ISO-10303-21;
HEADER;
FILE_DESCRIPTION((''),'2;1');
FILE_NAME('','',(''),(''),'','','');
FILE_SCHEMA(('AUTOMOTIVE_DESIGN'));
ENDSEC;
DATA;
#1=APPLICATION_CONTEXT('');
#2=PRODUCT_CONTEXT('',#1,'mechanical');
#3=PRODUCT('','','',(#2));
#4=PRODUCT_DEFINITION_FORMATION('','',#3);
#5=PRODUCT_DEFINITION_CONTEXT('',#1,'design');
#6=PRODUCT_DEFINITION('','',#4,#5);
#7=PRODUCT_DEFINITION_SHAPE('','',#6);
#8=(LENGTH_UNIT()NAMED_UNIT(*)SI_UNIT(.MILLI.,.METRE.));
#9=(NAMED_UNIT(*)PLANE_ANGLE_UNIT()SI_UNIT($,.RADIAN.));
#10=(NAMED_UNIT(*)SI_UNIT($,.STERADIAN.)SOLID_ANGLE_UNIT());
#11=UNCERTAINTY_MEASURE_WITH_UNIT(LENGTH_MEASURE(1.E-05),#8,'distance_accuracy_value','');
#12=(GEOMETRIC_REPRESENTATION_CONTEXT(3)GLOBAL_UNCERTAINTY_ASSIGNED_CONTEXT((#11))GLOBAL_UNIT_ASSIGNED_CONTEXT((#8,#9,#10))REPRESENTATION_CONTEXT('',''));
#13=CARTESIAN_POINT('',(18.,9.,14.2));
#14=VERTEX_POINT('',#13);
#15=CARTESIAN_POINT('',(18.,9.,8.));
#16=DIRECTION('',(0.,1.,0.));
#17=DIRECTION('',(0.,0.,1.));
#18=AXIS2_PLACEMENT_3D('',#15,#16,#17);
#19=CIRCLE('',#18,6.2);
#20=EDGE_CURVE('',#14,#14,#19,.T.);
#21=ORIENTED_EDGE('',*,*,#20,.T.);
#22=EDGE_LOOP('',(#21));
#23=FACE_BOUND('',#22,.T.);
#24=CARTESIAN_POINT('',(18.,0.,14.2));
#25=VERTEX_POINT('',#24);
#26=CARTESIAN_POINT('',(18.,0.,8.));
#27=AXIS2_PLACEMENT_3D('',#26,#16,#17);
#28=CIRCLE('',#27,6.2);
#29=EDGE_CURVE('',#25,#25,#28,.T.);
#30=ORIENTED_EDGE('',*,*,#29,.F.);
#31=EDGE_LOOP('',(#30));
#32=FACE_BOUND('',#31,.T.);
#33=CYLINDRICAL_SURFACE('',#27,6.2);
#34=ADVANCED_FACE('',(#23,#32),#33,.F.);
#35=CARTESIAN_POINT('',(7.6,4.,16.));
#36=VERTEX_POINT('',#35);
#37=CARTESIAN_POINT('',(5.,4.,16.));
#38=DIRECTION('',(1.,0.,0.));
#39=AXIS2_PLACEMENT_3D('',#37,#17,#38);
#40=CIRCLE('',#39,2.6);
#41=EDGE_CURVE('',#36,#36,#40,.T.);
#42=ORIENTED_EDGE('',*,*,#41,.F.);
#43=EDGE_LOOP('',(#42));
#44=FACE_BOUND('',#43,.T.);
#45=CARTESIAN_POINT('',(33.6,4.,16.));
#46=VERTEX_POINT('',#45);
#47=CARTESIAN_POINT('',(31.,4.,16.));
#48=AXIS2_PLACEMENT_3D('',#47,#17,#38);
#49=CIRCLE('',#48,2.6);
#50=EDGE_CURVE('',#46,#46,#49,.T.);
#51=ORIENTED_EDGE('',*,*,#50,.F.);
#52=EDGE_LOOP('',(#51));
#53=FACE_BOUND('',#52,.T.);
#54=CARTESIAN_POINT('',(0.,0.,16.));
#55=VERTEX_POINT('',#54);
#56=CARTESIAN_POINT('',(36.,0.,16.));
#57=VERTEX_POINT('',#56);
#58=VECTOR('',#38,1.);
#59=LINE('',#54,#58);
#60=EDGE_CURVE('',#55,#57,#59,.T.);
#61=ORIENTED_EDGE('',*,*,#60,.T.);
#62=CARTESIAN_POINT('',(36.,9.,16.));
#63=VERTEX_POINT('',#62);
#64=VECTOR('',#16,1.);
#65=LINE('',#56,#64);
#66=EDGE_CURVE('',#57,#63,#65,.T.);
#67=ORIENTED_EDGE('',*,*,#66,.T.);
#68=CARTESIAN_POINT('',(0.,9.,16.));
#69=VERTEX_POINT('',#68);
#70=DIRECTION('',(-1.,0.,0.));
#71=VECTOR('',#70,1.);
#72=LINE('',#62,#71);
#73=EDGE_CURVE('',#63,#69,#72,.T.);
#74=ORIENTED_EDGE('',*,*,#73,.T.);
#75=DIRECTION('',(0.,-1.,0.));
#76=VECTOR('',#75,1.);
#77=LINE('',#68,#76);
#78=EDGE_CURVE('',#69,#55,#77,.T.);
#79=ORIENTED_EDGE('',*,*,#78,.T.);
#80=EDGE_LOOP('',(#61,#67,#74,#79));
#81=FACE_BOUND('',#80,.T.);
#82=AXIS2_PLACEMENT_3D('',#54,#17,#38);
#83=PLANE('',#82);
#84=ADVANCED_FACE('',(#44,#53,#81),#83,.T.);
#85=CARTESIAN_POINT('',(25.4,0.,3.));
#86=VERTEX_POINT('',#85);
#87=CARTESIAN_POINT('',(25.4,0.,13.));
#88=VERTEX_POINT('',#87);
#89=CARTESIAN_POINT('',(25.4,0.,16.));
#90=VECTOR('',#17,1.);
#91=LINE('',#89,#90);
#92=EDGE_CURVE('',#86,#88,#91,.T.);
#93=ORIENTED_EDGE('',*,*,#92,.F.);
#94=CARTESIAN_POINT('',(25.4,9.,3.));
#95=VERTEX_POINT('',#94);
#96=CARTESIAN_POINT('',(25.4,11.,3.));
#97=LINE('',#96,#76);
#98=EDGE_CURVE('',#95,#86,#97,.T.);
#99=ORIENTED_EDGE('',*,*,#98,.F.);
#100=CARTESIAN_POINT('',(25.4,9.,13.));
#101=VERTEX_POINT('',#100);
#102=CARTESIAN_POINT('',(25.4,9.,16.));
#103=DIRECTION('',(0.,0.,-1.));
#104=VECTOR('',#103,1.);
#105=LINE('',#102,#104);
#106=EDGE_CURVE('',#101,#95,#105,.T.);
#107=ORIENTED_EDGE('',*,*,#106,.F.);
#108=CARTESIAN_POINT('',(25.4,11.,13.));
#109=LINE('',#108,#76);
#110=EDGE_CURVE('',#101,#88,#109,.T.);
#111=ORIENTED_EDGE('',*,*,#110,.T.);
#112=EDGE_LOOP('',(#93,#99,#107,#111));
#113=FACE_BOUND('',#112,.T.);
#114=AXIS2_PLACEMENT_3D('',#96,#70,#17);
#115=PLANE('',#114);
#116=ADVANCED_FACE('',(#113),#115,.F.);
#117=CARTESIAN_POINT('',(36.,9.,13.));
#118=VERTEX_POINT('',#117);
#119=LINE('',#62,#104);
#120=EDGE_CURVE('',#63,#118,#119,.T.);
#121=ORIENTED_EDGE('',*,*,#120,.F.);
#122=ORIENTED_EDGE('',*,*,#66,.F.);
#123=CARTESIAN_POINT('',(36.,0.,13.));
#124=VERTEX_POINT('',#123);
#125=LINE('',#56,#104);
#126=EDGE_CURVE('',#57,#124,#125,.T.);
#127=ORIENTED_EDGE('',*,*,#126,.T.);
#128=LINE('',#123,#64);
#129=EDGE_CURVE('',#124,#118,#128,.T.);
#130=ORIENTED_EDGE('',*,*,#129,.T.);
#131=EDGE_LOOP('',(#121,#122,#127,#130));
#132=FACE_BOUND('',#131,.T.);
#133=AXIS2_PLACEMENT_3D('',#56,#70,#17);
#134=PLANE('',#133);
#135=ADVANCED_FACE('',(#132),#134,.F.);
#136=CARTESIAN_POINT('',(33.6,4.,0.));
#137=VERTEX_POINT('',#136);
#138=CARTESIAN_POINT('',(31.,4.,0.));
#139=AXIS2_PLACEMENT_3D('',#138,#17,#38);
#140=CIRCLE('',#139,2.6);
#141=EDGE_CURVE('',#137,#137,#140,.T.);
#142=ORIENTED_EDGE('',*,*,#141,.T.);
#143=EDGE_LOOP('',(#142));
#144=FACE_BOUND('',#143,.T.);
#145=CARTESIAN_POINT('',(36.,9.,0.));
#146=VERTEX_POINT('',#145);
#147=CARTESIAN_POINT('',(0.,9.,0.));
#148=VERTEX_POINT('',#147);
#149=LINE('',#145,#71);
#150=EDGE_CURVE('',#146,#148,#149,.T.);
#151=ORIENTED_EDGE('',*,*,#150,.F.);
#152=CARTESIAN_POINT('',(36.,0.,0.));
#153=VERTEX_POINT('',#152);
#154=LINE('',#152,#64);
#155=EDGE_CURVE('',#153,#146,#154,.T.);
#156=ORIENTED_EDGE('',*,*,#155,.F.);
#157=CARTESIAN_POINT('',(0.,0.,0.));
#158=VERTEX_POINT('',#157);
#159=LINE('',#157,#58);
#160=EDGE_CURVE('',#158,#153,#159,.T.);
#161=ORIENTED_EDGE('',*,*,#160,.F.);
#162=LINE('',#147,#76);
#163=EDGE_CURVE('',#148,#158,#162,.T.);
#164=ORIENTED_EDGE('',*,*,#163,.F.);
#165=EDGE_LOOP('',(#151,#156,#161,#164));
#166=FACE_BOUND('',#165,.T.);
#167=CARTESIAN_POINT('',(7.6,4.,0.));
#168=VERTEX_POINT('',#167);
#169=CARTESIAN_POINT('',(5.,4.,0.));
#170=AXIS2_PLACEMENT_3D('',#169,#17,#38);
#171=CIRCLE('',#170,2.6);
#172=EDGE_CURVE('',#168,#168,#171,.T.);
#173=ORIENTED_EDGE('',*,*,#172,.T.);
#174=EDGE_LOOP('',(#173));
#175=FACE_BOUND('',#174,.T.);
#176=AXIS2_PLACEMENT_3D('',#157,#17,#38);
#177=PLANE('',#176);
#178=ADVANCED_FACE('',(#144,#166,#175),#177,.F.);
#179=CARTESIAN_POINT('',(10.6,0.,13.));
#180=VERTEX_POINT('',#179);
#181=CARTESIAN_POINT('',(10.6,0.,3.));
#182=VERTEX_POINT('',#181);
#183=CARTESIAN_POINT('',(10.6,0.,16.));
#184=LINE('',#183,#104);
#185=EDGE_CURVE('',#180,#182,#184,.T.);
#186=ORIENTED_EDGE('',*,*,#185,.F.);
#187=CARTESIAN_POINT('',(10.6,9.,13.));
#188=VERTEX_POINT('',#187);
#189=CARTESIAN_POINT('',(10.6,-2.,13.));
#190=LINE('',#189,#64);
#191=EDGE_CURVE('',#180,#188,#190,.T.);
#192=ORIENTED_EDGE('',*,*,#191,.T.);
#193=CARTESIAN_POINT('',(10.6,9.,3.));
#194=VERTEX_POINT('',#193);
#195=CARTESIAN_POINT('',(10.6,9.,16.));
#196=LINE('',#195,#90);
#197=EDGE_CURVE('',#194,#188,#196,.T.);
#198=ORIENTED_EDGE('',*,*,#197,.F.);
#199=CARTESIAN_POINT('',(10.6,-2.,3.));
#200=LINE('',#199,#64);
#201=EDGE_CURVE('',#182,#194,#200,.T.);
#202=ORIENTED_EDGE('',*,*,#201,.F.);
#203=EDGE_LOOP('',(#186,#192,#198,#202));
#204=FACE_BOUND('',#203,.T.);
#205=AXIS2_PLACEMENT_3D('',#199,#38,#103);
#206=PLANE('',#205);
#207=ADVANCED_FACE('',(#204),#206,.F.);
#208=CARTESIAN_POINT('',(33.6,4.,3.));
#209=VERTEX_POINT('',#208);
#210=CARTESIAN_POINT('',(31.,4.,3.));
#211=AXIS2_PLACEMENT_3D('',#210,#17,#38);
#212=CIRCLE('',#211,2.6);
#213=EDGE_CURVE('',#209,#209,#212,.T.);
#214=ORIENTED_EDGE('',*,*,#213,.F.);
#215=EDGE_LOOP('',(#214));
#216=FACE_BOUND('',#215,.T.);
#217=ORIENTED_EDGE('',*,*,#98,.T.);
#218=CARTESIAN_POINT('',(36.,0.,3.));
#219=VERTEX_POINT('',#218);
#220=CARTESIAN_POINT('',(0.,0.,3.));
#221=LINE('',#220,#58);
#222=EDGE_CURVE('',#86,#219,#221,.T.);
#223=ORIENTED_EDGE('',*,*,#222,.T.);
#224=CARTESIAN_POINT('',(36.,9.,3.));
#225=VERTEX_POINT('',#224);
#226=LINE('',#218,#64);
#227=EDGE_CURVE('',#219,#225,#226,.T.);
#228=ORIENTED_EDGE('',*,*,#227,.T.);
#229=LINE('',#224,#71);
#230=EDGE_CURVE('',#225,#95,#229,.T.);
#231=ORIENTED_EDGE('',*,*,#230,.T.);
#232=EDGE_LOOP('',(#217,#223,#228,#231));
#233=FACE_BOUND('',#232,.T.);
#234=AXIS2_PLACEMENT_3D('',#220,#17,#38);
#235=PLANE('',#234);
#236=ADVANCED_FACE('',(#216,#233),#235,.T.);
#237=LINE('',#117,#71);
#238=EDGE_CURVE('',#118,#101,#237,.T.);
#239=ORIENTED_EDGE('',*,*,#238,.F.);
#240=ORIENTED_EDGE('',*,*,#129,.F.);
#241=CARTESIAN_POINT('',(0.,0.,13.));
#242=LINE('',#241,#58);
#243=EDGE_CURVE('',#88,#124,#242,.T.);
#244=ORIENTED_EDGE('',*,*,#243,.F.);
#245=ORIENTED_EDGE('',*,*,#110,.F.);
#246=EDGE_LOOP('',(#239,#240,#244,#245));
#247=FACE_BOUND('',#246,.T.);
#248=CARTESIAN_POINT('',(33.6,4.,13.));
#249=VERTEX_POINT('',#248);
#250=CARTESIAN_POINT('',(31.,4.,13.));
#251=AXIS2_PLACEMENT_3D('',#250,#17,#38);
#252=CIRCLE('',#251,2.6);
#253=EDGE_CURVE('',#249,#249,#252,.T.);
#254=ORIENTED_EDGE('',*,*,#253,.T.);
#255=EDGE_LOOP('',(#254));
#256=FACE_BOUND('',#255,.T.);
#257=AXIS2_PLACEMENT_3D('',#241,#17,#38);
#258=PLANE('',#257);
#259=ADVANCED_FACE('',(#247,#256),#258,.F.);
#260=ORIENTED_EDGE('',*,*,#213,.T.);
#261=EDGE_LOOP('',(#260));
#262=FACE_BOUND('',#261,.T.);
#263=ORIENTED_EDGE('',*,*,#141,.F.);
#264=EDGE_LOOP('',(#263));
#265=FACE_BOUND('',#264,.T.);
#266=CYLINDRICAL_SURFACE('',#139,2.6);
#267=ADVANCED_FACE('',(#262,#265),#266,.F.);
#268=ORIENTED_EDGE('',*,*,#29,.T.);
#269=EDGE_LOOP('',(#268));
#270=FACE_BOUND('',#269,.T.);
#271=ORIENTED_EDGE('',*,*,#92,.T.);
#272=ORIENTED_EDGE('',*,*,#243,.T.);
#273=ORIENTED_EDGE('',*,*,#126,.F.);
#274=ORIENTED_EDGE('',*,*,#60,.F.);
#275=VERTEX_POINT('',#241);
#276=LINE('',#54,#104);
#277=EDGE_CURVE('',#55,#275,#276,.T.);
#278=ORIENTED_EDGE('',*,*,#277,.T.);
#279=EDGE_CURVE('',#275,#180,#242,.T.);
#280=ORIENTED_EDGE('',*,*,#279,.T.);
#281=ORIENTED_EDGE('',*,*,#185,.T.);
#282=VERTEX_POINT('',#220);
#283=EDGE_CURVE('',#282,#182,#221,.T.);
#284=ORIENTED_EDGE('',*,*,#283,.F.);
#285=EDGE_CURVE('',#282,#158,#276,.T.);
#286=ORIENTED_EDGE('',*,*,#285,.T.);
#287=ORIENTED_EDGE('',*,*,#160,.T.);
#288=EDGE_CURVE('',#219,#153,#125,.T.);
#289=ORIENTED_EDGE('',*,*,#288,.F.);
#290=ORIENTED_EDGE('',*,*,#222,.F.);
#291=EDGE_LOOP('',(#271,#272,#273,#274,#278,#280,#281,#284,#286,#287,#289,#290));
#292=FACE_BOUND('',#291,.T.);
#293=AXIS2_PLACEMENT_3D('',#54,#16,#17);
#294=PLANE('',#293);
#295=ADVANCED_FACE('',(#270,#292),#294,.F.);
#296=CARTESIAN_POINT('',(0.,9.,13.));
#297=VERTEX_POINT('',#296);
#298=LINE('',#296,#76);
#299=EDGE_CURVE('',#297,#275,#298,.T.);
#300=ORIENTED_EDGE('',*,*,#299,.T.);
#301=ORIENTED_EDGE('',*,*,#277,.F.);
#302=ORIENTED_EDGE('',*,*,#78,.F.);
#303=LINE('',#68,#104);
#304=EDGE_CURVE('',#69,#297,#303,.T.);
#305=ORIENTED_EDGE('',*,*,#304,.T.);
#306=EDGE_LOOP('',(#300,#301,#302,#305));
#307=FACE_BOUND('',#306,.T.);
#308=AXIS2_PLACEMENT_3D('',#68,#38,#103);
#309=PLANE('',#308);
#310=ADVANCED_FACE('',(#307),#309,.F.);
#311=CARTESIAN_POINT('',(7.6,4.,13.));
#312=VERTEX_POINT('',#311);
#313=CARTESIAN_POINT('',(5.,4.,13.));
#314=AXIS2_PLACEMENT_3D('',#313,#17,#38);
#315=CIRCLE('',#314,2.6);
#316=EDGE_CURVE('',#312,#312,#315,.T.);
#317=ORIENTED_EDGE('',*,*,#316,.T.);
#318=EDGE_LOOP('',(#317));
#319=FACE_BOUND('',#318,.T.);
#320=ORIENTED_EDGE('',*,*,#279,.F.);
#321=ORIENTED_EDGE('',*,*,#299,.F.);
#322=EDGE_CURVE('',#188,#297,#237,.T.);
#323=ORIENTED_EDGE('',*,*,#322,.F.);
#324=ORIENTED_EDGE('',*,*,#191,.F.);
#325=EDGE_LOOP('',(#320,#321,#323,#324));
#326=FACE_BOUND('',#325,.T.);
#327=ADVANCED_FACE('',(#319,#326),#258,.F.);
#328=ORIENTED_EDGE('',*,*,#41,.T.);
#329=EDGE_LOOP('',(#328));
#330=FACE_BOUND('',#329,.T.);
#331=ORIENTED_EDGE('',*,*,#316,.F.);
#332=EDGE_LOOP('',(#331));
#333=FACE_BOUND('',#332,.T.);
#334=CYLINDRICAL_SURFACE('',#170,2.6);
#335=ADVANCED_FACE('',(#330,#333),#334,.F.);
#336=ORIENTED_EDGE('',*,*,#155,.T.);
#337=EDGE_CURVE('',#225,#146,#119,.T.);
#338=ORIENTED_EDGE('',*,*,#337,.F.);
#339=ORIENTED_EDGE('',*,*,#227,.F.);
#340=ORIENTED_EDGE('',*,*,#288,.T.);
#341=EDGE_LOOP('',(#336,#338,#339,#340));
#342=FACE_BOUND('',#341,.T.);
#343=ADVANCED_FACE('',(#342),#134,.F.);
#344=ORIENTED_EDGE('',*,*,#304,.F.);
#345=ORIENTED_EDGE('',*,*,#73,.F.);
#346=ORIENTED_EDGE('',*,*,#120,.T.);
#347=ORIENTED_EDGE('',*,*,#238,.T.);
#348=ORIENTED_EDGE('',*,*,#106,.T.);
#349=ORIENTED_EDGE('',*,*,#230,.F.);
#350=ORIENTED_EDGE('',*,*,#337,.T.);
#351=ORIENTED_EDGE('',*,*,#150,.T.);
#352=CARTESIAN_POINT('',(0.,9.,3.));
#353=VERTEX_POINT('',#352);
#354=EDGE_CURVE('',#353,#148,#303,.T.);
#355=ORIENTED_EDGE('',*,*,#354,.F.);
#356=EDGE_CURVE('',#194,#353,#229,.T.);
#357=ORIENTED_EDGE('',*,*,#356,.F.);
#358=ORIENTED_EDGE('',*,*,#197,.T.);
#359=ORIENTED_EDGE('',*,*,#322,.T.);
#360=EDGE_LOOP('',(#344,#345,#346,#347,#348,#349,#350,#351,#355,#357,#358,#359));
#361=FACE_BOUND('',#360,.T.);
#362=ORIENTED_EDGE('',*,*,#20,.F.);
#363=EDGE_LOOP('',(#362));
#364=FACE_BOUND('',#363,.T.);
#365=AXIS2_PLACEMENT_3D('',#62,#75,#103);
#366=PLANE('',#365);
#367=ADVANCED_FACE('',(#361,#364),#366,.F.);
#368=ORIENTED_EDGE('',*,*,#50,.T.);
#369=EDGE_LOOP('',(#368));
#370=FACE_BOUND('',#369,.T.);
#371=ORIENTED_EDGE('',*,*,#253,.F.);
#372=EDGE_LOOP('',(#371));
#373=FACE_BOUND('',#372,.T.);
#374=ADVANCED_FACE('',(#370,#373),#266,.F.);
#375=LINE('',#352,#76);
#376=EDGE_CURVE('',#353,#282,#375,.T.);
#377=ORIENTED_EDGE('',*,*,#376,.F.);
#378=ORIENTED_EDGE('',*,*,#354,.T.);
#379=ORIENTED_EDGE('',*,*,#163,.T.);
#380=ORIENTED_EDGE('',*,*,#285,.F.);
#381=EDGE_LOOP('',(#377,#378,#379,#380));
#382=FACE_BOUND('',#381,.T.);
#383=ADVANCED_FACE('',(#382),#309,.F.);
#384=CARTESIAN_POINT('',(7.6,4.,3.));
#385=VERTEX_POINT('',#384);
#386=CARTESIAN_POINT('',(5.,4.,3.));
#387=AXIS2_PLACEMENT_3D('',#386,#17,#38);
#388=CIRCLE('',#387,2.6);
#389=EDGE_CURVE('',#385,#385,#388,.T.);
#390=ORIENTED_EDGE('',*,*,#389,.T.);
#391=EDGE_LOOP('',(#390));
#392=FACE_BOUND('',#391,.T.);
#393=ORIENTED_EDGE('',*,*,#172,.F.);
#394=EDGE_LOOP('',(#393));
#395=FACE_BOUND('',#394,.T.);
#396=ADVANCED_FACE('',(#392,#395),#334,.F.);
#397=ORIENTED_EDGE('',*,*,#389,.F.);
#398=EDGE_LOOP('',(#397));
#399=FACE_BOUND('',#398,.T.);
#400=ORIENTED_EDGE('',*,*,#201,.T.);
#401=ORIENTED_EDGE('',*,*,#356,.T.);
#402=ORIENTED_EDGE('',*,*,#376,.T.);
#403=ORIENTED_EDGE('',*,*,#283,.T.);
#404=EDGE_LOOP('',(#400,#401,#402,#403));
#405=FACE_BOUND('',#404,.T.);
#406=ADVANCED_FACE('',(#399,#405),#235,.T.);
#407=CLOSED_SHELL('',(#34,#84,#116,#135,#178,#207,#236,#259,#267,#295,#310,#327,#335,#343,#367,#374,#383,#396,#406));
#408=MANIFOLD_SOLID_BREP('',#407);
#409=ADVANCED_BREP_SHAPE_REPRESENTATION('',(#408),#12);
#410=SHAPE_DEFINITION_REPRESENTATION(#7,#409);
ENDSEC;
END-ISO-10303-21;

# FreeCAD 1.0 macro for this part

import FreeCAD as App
import Part
import Sketcher

V = App.Vector
Q = App.Units.Quantity

doc = App.newDocument("Part")
params = doc.addObject("Spreadsheet::Sheet", "Params")
for row, (alias, value) in enumerate([
    ("sketch1_width", "36 mm"),
    ("sketch1_height", "9 mm"),
    ("pad1_length", "16 mm"),
    ("sketch2_height", "13 mm"),
    ("sketch2_width", "12.6 mm"),
    ("pocket1_length", "10 mm"),
    ("sketch3_height", "13 mm"),
    ("sketch3_width", "12.6 mm"),
    ("pocket2_length", "10 mm"),
    ("sketch4_diameter", "5.2 mm"),
    ("sketch5_diameter", "5.2 mm"),
    ("sketch6_diameter", "12.4 mm"),
], start=1):
    params.set(f"A{row}", alias)
    params.set(f"B{row}", "=" + value)
    params.setAlias(f"B{row}", alias)

body = doc.addObject("PartDesign::Body", "Body")

sketch1 = doc.addObject("Sketcher::SketchObject", "Sketch")
body.addObject(sketch1)
sketch1.AttachmentSupport = (doc.XY_Plane, [""])
sketch1.MapMode = "FlatFace"
sketch1.addGeometry([
    Part.LineSegment(V(0, 9, 0), V(0, 0, 0)),
    Part.LineSegment(V(0, 0, 0), V(36, 0, 0)),
    Part.LineSegment(V(36, 0, 0), V(36, 9, 0)),
    Part.LineSegment(V(36, 9, 0), V(0, 9, 0)),
], False)
sketch1.addConstraint([
    Sketcher.Constraint("Coincident", 0, 2, 1, 1),
    Sketcher.Constraint("Coincident", 1, 2, 2, 1),
    Sketcher.Constraint("Coincident", 2, 2, 3, 1),
    Sketcher.Constraint("Coincident", 3, 2, 0, 1),
    Sketcher.Constraint("Vertical", 0),
    Sketcher.Constraint("Horizontal", 1),
    Sketcher.Constraint("Vertical", 2),
    Sketcher.Constraint("Horizontal", 3),
    Sketcher.Constraint("Coincident", 0, 2, -1, 1),
    Sketcher.Constraint("DistanceX", 1, 1, 1, 2, Q("36 mm")),
    Sketcher.Constraint("DistanceY", 0, 2, 0, 1, Q("9 mm")),
])
sketch1.setExpression("Constraints[9]", "Params.sketch1_width")
sketch1.setExpression("Constraints[10]", "Params.sketch1_height")
pad1 = doc.addObject("PartDesign::Pad", "Pad")
body.addObject(pad1)
pad1.Profile = sketch1
pad1.setExpression("Length", "Params.pad1_length")

sketch2 = doc.addObject("Sketcher::SketchObject", "Sketch001")
body.addObject(sketch2)
sketch2.AttachmentSupport = (doc.XY_Plane, [""])
sketch2.MapMode = "FlatFace"
sketch2.AttachmentOffset = App.Placement(V(0, 0, 8), App.Rotation())
sketch2.addGeometry([
    Part.LineSegment(V(-2, 11, 0), V(-2, -2, 0)),
    Part.LineSegment(V(-2, -2, 0), V(10.6, -2, 0)),
    Part.LineSegment(V(10.6, -2, 0), V(10.6, 11, 0)),
    Part.LineSegment(V(10.6, 11, 0), V(-2, 11, 0)),
], False)
sketch2.addConstraint([
    Sketcher.Constraint("Coincident", 0, 2, 1, 1),
    Sketcher.Constraint("Coincident", 1, 2, 2, 1),
    Sketcher.Constraint("Coincident", 2, 2, 3, 1),
    Sketcher.Constraint("Coincident", 3, 2, 0, 1),
    Sketcher.Constraint("Vertical", 0),
    Sketcher.Constraint("Horizontal", 1),
    Sketcher.Constraint("Vertical", 2),
    Sketcher.Constraint("Horizontal", 3),
    Sketcher.Constraint("DistanceY", 0, 2, 0, 1, Q("13 mm")),
    Sketcher.Constraint("DistanceX", 1, 1, 1, 2, Q("12.6 mm")),
    Sketcher.Constraint("DistanceX", 0, 2, -1, 1, Q("2 mm")),
    Sketcher.Constraint("DistanceY", 0, 2, -1, 1, Q("2 mm")),
])
sketch2.setExpression("Constraints[8]", "Params.sketch2_height")
sketch2.setExpression("Constraints[9]", "Params.sketch2_width")
pocket1 = doc.addObject("PartDesign::Pocket", "Pocket")
body.addObject(pocket1)
pocket1.Profile = sketch2
pocket1.setExpression("Length", "Params.pocket1_length")
pocket1.Midplane = True

sketch3 = doc.addObject("Sketcher::SketchObject", "Sketch002")
body.addObject(sketch3)
sketch3.AttachmentSupport = (doc.XY_Plane, [""])
sketch3.MapMode = "FlatFace"
sketch3.AttachmentOffset = App.Placement(V(0, 0, 8), App.Rotation())
sketch3.addGeometry([
    Part.LineSegment(V(25.4, 11, 0), V(25.4, -2, 0)),
    Part.LineSegment(V(25.4, -2, 0), V(38, -2, 0)),
    Part.LineSegment(V(38, -2, 0), V(38, 11, 0)),
    Part.LineSegment(V(38, 11, 0), V(25.4, 11, 0)),
], False)
sketch3.addConstraint([
    Sketcher.Constraint("Coincident", 0, 2, 1, 1),
    Sketcher.Constraint("Coincident", 1, 2, 2, 1),
    Sketcher.Constraint("Coincident", 2, 2, 3, 1),
    Sketcher.Constraint("Coincident", 3, 2, 0, 1),
    Sketcher.Constraint("Vertical", 0),
    Sketcher.Constraint("Horizontal", 1),
    Sketcher.Constraint("Vertical", 2),
    Sketcher.Constraint("Horizontal", 3),
    Sketcher.Constraint("DistanceY", 0, 2, 0, 1, Q("13 mm")),
    Sketcher.Constraint("DistanceX", 1, 1, 1, 2, Q("12.6 mm")),
    Sketcher.Constraint("DistanceY", 0, 2, -1, 1, Q("2 mm")),
    Sketcher.Constraint("DistanceX", -1, 1, 1, 2, Q("38 mm")),
])
sketch3.setExpression("Constraints[8]", "Params.sketch3_height")
sketch3.setExpression("Constraints[9]", "Params.sketch3_width")
pocket2 = doc.addObject("PartDesign::Pocket", "Pocket001")
body.addObject(pocket2)
pocket2.Profile = sketch3
pocket2.setExpression("Length", "Params.pocket2_length")
pocket2.Midplane = True

sketch4 = doc.addObject("Sketcher::SketchObject", "Sketch003")
body.addObject(sketch4)
sketch4.AttachmentSupport = (doc.XY_Plane, [""])
sketch4.MapMode = "FlatFace"
sketch4.AttachmentOffset = App.Placement(V(0, 0, 16), App.Rotation())
sketch4.addGeometry(Part.Circle(V(5, 4, 0), V(0, 0, 1), 2.6), False)
sketch4.addConstraint([
    Sketcher.Constraint("Diameter", 0, Q("5.2 mm")),
    Sketcher.Constraint("DistanceX", -1, 1, 0, 3, Q("5 mm")),
    Sketcher.Constraint("DistanceY", -1, 1, 0, 3, Q("4 mm")),
])
sketch4.setExpression("Constraints[0]", "Params.sketch4_diameter")
pocket3 = doc.addObject("PartDesign::Pocket", "Pocket002")
body.addObject(pocket3)
pocket3.Profile = sketch4
pocket3.Type = "ThroughAll"

sketch5 = doc.addObject("Sketcher::SketchObject", "Sketch004")
body.addObject(sketch5)
sketch5.AttachmentSupport = (doc.XY_Plane, [""])
sketch5.MapMode = "FlatFace"
sketch5.AttachmentOffset = App.Placement(V(0, 0, 16), App.Rotation())
sketch5.addGeometry(Part.Circle(V(31, 4, 0), V(0, 0, 1), 2.6), False)
sketch5.addConstraint([
    Sketcher.Constraint("Diameter", 0, Q("5.2 mm")),
    Sketcher.Constraint("DistanceX", -1, 1, 0, 3, Q("31 mm")),
    Sketcher.Constraint("DistanceY", -1, 1, 0, 3, Q("4 mm")),
])
sketch5.setExpression("Constraints[0]", "Params.sketch5_diameter")
pocket4 = doc.addObject("PartDesign::Pocket", "Pocket003")
body.addObject(pocket4)
pocket4.Profile = sketch5
pocket4.Type = "ThroughAll"

sketch6 = doc.addObject("Sketcher::SketchObject", "Sketch005")
body.addObject(sketch6)
sketch6.AttachmentSupport = (doc.XZ_Plane, [""])
sketch6.MapMode = "FlatFace"
sketch6.AttachmentOffset = App.Placement(V(0, 0, -9), App.Rotation())
sketch6.addGeometry(Part.Circle(V(18, 8, 0), V(0, 0, 1), 6.2), False)
sketch6.addConstraint([
    Sketcher.Constraint("Diameter", 0, Q("12.4 mm")),
    Sketcher.Constraint("DistanceX", -1, 1, 0, 3, Q("18 mm")),
    Sketcher.Constraint("DistanceY", -1, 1, 0, 3, Q("8 mm")),
])
sketch6.setExpression("Constraints[0]", "Params.sketch6_diameter")
pocket5 = doc.addObject("PartDesign::Pocket", "Pocket004")
body.addObject(pocket5)
pocket5.Profile = sketch6
pocket5.Type = "ThroughAll"
pocket5.Reversed = True

doc.recompute()
